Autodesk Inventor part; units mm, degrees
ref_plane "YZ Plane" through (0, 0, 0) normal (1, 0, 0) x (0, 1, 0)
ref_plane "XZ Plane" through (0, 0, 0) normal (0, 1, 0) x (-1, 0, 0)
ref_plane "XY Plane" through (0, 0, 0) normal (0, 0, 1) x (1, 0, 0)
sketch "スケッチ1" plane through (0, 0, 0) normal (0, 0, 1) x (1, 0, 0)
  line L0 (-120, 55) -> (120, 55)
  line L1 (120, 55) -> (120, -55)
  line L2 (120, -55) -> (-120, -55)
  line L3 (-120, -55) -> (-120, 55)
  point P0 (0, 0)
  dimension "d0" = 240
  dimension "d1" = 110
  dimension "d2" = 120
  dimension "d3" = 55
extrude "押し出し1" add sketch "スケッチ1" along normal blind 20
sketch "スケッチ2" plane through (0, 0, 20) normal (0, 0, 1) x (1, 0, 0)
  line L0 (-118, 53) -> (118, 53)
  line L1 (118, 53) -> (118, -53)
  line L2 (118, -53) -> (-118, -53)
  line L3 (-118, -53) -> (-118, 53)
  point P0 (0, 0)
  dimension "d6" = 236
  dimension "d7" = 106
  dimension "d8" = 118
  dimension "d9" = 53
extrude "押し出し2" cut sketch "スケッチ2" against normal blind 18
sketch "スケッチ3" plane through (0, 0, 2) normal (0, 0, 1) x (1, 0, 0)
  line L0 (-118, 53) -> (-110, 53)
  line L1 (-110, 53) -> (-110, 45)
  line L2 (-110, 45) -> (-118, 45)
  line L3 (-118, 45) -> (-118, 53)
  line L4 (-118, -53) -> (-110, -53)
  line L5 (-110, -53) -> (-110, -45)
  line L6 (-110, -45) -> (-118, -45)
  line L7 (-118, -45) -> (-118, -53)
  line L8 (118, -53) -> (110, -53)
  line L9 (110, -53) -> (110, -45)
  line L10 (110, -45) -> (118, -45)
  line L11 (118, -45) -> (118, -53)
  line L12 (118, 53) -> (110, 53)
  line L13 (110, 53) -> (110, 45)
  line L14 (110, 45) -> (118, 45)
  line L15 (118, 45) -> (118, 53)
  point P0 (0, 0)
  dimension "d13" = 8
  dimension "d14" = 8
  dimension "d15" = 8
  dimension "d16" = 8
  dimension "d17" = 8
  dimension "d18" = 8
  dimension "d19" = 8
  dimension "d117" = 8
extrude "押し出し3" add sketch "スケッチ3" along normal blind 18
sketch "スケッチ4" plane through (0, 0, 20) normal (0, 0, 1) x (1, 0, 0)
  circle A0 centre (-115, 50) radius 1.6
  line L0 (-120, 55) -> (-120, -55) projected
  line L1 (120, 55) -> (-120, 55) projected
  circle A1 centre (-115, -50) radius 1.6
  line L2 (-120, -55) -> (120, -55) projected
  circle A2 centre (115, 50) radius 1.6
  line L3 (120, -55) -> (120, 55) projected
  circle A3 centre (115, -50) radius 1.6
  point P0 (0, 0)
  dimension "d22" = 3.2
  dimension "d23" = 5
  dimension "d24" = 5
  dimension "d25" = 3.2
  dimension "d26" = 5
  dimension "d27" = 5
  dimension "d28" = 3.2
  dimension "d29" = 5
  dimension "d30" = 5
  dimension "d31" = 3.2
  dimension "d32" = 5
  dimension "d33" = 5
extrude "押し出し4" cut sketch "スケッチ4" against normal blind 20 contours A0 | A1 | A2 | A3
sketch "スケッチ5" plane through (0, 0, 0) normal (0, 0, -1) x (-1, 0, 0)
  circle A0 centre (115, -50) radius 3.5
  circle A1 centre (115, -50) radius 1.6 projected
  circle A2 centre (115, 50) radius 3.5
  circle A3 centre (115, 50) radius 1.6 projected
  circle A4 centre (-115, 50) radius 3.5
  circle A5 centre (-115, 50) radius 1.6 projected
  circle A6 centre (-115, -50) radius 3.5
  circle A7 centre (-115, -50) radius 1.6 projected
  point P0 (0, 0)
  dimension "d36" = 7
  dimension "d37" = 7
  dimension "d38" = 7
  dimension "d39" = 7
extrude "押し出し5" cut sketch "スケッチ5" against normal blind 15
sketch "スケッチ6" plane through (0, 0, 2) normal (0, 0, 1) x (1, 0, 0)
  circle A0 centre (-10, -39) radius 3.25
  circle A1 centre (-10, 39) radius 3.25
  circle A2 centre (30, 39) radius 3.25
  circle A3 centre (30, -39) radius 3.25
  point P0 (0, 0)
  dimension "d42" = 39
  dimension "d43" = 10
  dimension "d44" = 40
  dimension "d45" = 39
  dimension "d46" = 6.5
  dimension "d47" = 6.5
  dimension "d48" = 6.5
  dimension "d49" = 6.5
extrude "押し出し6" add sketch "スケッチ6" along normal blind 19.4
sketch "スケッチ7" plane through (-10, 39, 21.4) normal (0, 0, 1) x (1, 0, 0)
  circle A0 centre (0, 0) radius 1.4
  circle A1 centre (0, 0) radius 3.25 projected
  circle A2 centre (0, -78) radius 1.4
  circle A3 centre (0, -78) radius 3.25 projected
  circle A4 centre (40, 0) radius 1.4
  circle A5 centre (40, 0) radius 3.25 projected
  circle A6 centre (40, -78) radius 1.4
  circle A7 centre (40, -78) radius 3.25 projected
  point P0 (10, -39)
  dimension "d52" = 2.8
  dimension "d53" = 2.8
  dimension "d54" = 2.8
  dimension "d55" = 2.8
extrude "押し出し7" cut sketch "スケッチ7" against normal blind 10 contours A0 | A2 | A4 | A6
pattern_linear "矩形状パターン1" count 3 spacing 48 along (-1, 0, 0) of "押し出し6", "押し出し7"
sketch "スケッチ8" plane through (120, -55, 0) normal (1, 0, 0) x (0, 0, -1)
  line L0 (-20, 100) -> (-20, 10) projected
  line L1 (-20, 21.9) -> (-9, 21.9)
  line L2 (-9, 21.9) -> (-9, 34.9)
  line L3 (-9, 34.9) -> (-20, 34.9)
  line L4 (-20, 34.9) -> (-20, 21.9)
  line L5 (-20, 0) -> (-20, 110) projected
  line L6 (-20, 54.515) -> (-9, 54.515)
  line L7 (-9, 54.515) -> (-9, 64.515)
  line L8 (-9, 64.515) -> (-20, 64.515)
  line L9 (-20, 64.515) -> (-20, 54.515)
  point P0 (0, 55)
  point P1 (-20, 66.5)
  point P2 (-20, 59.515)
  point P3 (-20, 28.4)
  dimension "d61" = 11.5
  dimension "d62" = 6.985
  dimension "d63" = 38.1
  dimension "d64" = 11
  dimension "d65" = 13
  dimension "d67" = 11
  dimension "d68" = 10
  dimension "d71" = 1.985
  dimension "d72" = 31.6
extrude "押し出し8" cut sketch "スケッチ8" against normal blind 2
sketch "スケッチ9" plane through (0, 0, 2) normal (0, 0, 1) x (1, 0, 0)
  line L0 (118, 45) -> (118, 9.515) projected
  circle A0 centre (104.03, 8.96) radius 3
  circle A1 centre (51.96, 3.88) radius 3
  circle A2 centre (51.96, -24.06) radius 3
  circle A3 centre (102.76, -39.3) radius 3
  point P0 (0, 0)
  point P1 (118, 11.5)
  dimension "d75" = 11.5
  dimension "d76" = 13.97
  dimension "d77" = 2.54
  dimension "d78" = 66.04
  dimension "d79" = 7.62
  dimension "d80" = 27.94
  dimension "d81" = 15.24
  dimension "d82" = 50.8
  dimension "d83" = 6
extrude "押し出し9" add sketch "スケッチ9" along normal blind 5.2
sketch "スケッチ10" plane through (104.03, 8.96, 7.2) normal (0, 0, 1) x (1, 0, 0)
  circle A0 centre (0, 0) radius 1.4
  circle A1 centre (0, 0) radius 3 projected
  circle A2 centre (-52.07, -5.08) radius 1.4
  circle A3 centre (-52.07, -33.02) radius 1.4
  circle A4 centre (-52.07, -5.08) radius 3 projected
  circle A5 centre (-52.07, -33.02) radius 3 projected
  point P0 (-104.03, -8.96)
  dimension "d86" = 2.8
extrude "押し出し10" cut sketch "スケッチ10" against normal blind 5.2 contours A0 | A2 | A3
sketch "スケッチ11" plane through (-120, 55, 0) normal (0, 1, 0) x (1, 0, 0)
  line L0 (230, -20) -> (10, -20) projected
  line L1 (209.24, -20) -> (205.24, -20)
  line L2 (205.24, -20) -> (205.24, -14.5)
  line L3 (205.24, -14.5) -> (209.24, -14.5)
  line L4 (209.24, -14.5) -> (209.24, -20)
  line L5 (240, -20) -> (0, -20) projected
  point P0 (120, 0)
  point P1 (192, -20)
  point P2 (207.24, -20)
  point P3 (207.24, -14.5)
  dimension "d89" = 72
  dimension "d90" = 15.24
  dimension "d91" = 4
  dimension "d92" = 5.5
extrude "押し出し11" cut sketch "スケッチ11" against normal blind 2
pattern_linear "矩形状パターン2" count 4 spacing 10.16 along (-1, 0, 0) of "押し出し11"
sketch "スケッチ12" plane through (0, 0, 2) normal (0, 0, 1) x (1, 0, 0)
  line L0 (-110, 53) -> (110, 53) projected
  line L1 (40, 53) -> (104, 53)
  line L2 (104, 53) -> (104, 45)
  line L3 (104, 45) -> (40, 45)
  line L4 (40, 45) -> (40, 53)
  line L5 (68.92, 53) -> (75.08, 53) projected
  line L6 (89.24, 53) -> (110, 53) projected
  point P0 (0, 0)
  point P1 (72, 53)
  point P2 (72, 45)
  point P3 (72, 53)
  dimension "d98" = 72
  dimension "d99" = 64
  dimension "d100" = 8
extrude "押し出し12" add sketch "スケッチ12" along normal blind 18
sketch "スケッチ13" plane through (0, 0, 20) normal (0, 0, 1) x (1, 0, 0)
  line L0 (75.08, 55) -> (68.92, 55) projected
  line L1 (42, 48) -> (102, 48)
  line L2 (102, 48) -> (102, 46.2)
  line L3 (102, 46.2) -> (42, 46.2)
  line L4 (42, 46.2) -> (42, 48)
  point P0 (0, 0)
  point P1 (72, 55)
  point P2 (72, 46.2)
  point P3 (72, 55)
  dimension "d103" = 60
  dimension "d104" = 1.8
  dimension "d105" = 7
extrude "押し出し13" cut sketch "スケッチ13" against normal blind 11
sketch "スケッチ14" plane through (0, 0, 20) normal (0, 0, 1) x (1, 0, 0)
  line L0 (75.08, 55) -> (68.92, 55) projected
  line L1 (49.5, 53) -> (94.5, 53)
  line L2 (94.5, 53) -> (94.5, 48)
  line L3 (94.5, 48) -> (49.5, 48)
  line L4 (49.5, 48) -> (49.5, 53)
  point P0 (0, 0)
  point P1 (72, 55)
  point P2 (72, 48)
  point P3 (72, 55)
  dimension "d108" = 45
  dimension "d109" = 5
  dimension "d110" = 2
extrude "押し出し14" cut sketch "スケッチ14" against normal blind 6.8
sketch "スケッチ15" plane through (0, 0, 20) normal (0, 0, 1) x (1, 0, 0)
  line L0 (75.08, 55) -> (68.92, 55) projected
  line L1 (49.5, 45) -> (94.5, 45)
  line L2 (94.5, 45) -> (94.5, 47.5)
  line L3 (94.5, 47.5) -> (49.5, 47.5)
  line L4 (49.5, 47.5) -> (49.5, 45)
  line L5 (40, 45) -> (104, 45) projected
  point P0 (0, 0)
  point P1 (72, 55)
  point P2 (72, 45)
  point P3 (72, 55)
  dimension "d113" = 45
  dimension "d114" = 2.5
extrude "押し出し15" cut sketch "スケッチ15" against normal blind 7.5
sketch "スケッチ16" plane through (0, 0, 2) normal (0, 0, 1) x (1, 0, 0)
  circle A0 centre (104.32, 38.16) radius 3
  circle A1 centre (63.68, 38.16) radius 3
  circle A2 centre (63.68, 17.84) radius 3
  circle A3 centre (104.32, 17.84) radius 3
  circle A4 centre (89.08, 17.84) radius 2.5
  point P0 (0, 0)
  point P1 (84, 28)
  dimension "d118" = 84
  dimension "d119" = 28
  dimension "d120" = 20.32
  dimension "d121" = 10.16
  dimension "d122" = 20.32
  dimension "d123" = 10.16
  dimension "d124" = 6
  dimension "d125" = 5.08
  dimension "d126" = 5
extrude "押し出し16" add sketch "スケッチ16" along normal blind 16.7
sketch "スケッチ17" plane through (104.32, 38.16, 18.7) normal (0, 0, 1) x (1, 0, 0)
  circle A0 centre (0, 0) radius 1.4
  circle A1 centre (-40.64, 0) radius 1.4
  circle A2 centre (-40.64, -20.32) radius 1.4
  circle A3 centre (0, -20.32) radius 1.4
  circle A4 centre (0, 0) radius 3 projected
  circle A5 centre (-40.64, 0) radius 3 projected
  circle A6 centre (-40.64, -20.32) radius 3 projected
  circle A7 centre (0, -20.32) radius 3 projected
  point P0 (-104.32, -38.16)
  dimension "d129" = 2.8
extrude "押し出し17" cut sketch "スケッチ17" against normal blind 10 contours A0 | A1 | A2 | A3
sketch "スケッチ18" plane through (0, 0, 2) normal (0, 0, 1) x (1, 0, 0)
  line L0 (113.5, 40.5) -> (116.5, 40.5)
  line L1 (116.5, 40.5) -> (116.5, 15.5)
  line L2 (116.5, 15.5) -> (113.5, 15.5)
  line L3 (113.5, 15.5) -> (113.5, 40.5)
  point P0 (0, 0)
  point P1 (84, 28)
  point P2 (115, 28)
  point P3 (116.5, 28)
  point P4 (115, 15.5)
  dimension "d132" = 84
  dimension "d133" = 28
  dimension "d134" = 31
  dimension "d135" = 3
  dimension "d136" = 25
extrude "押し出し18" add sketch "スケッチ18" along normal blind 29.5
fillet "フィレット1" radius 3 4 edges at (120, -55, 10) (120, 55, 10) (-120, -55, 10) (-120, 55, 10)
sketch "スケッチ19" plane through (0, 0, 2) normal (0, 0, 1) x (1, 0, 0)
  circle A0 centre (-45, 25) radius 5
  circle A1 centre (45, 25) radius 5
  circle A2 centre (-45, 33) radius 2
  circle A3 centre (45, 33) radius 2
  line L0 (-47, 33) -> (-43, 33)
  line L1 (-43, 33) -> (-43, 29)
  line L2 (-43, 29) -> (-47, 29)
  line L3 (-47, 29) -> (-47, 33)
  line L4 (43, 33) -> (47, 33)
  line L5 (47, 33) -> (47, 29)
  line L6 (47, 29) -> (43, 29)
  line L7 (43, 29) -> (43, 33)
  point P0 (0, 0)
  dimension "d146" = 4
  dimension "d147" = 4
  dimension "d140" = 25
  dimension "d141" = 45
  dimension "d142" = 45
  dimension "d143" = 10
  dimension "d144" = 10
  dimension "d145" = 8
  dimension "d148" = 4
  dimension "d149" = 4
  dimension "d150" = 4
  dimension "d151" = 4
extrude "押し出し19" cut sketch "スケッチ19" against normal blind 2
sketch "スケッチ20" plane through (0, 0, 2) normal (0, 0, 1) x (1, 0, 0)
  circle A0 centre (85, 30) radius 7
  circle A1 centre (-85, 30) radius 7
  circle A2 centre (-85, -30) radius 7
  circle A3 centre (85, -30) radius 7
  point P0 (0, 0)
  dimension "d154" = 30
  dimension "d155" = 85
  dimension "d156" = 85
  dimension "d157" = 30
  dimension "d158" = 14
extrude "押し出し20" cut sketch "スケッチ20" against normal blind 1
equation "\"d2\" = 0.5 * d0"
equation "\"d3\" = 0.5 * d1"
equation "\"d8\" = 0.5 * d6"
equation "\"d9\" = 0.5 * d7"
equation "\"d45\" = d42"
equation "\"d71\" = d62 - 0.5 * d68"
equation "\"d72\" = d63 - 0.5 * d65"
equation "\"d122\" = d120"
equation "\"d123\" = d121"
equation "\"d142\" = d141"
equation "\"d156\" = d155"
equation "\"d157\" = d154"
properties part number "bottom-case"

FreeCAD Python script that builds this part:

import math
import FreeCAD as App
import Part
import Sketcher

V = App.Vector
Q = App.Units.Quantity


def edges_at(feature, points):
    """Names of the edges that pass closest to the given points."""
    edges = feature.Shape.Edges
    near = lambda p: min(range(len(edges)), key=lambda i: edges[i].distToShape(Part.Vertex(*p))[0])
    return sorted({f"Edge{near(p) + 1}" for p in points})


def add_polygon(sketch, points):
    """Adds a closed chain of lines whose ends are joined by coincident constraints."""
    first, n = sketch.GeometryCount, len(points)
    for a, b in zip(points, points[1:] + points[:1]):
        sketch.addGeometry(Part.LineSegment(App.Vector(*a, 0), App.Vector(*b, 0)), False)
    for i in range(n):
        sketch.addConstraint(Sketcher.Constraint("Coincident", first + i, 2, first + (i + 1) % n, 1))

doc = App.newDocument("Part")
body = doc.addObject("PartDesign::Body", "Body")

# Sketch on XY plane
sketch1 = body.newObject("Sketcher::SketchObject", "Sketch")
sketch1.AttachmentSupport = (doc.getObject("XY_Plane"), [""])
sketch1.MapMode = "FlatFace"
add_polygon(sketch1, [(120, 55), (-120, 55), (-120, -55), (120, -55)])  # lines 0-3
sketch1.addConstraint([
    Sketcher.Constraint("Horizontal", 0),
    Sketcher.Constraint("Vertical", 1),
    Sketcher.Constraint("Horizontal", 2),
    Sketcher.Constraint("Vertical", 3),
    Sketcher.Constraint("Symmetric", 0, 2, 2, 2, -1, 1),
    Sketcher.Constraint("DistanceX", 0, 2, 0, 1, Q("240 mm")),
    Sketcher.Constraint("DistanceY", 1, 2, 1, 1, Q("110 mm")),
])
pad1 = body.newObject("PartDesign::Pad", "Pad")
pad1.Profile = sketch1
pad1.Length = 20

# Sketch on XY plane
sketch2 = body.newObject("Sketcher::SketchObject", "Sketch001")
sketch2.AttachmentSupport = (doc.getObject("XY_Plane"), [""])
sketch2.MapMode = "FlatFace"
sketch2.AttachmentOffset = App.Placement(V(0, 0, 20), App.Rotation())
add_polygon(sketch2, [(118, 53), (-118, 53), (-118, -53), (118, -53)])  # lines 0-3
sketch2.addConstraint([
    Sketcher.Constraint("Horizontal", 0),
    Sketcher.Constraint("Vertical", 1),
    Sketcher.Constraint("Horizontal", 2),
    Sketcher.Constraint("Vertical", 3),
    Sketcher.Constraint("Symmetric", 0, 2, 2, 2, -1, 1),
    Sketcher.Constraint("DistanceX", 0, 2, 0, 1, Q("236 mm")),
    Sketcher.Constraint("DistanceY", 1, 2, 1, 1, Q("106 mm")),
])
pocket1 = body.newObject("PartDesign::Pocket", "Pocket")
pocket1.Profile = sketch2
pocket1.Length = 18

# Sketch on XY plane
sketch3 = body.newObject("Sketcher::SketchObject", "Sketch002")
sketch3.AttachmentSupport = (doc.getObject("XY_Plane"), [""])
sketch3.MapMode = "FlatFace"
sketch3.AttachmentOffset = App.Placement(V(0, 0, 2), App.Rotation())
add_polygon(sketch3, [(-110, 53), (-118, 53), (-118, 45), (-110, 45)])  # lines 0-3
add_polygon(sketch3, [(-118, -45), (-118, -53), (-110, -53), (-110, -45)])  # lines 4-7
add_polygon(sketch3, [(110, -53), (118, -53), (118, -45), (110, -45)])  # lines 8-11
add_polygon(sketch3, [(118, 45), (118, 53), (110, 53), (110, 45)])  # lines 12-15
sketch3.addConstraint([
    Sketcher.Constraint("Horizontal", 0),
    Sketcher.Constraint("Vertical", 1),
    Sketcher.Constraint("Horizontal", 2),
    Sketcher.Constraint("Vertical", 3),
    Sketcher.Constraint("Vertical", 4),
    Sketcher.Constraint("Horizontal", 5),
    Sketcher.Constraint("Vertical", 6),
    Sketcher.Constraint("Horizontal", 7),
    Sketcher.Constraint("Horizontal", 8),
    Sketcher.Constraint("Vertical", 9),
    Sketcher.Constraint("Horizontal", 10),
    Sketcher.Constraint("Vertical", 11),
    Sketcher.Constraint("Vertical", 12),
    Sketcher.Constraint("Horizontal", 13),
    Sketcher.Constraint("Vertical", 14),
    Sketcher.Constraint("Horizontal", 15),
    Sketcher.Constraint("Symmetric", 0, 2, 8, 2, -1, 1),
    Sketcher.Constraint("Symmetric", 2, 2, 10, 2, -1, 1),
    Sketcher.Constraint("Symmetric", 4, 2, 12, 2, -1, 1),
    Sketcher.Constraint("Symmetric", 6, 2, 14, 2, -1, 1),
    Sketcher.Constraint("Symmetric", 4, 2, 8, 2, -2),
    Sketcher.Constraint("Symmetric", 6, 2, 10, 2, -2),
    Sketcher.Constraint("Equal", 15, 1),
    Sketcher.Constraint("DistanceX", 0, 2, 0, 1, Q("8 mm")),
    Sketcher.Constraint("DistanceX", 0, 2, -1, 1, Q("118 mm")),
    Sketcher.Constraint("DistanceY", -1, 1, 0, 2, Q("53 mm")),
])
pad2 = body.newObject("PartDesign::Pad", "Pad001")
pad2.Profile = sketch3
pad2.Length = 18

# Sketch on XY plane
sketch4 = body.newObject("Sketcher::SketchObject", "Sketch003")
sketch4.AttachmentSupport = (doc.getObject("XY_Plane"), [""])
sketch4.MapMode = "FlatFace"
sketch4.AttachmentOffset = App.Placement(V(0, 0, 20), App.Rotation())
sketch4.addGeometry([
    Part.Circle(V(-115, 50, 0), V(0, 0, 1), 1.6),
    Part.Circle(V(-115, -50, 0), V(0, 0, 1), 1.6),
    Part.Circle(V(115, 50, 0), V(0, 0, 1), 1.6),
    Part.Circle(V(115, -50, 0), V(0, 0, 1), 1.6),
], False)
sketch4.addConstraint([
    Sketcher.Constraint("Equal", 0, 1),
    Sketcher.Constraint("Equal", 1, 2),
    Sketcher.Constraint("Equal", 2, 3),
    Sketcher.Constraint("Symmetric", 1, 3, 2, 3, -1, 1),
    Sketcher.Constraint("Symmetric", 0, 3, 3, 3, -1, 1),
    Sketcher.Constraint("Symmetric", 0, 3, 2, 3, -2),
    Sketcher.Constraint("Diameter", 0, Q("3.2 mm")),
    Sketcher.Constraint("DistanceX", 0, 3, -1, 1, Q("115 mm")),
    Sketcher.Constraint("DistanceY", -1, 1, 0, 3, Q("50 mm")),
])
pocket2 = body.newObject("PartDesign::Pocket", "Pocket001")
pocket2.Profile = sketch4
pocket2.Length = 20

# Sketch on XY plane
sketch5 = body.newObject("Sketcher::SketchObject", "Sketch004")
sketch5.AttachmentSupport = (doc.getObject("XY_Plane"), [""])
sketch5.MapMode = "FlatFace"
sketch5.addGeometry([
    Part.Circle(V(-115, -50, 0), V(0, 0, 1), 3.5),  # 0
    Part.Circle(V(-115, -50, 0), V(0, 0, 1), 1.6),  # 1
    Part.Circle(V(-115, 50, 0), V(0, 0, 1), 3.5),  # 2
    Part.Circle(V(-115, 50, 0), V(0, 0, 1), 1.6),  # 3
    Part.Circle(V(115, 50, 0), V(0, 0, 1), 3.5),  # 4
    Part.Circle(V(115, 50, 0), V(0, 0, 1), 1.6),  # 5
    Part.Circle(V(115, -50, 0), V(0, 0, 1), 3.5),  # 6
    Part.Circle(V(115, -50, 0), V(0, 0, 1), 1.6),  # 7
], False)
sketch5.addConstraint([
    Sketcher.Constraint("Coincident", 1, 3, 0, 3),
    Sketcher.Constraint("Coincident", 3, 3, 2, 3),
    Sketcher.Constraint("Coincident", 5, 3, 4, 3),
    Sketcher.Constraint("Coincident", 7, 3, 6, 3),
    Sketcher.Constraint("Equal", 0, 2),
    Sketcher.Constraint("Equal", 1, 3),
    Sketcher.Constraint("Equal", 2, 4),
    Sketcher.Constraint("Equal", 3, 5),
    Sketcher.Constraint("Equal", 4, 6),
    Sketcher.Constraint("Equal", 5, 7),
    Sketcher.Constraint("Symmetric", 0, 3, 4, 3, -1, 1),
    Sketcher.Constraint("Symmetric", 2, 3, 6, 3, -1, 1),
    Sketcher.Constraint("Symmetric", 2, 3, 4, 3, -2),
    Sketcher.Constraint("Diameter", 0, Q("7 mm")),
    Sketcher.Constraint("Diameter", 1, Q("3.2 mm")),
    Sketcher.Constraint("DistanceX", 0, 3, -1, 1, Q("115 mm")),
    Sketcher.Constraint("DistanceY", 0, 3, -1, 1, Q("50 mm")),
])
pocket3 = body.newObject("PartDesign::Pocket", "Pocket002")
pocket3.Profile = sketch5
pocket3.Length = 15
pocket3.Reversed = True

# Sketch on XY plane
sketch6 = body.newObject("Sketcher::SketchObject", "Sketch005")
sketch6.AttachmentSupport = (doc.getObject("XY_Plane"), [""])
sketch6.MapMode = "FlatFace"
sketch6.AttachmentOffset = App.Placement(V(0, 0, 2), App.Rotation())
sketch6.addGeometry([
    Part.Circle(V(-10, -39, 0), V(0, 0, 1), 3.2),
    Part.Circle(V(-10, 39, 0), V(0, 0, 1), 3.2),
    Part.Circle(V(30, 39, 0), V(0, 0, 1), 3.2),
    Part.Circle(V(30, -39, 0), V(0, 0, 1), 3.2),
], False)
sketch6.addConstraint([
    Sketcher.Constraint("Equal", 0, 1),
    Sketcher.Constraint("Equal", 1, 2),
    Sketcher.Constraint("Equal", 2, 3),
    Sketcher.Constraint("Symmetric", 0, 3, 1, 3, -1),
    Sketcher.Constraint("Symmetric", 2, 3, 3, 3, -1),
    Sketcher.Constraint("Horizontal", 1, 3, 2, 3),
    Sketcher.Constraint("Diameter", 0, Q("6.5 mm")),
    Sketcher.Constraint("DistanceX", 0, 3, -1, 1, Q("10 mm")),
    Sketcher.Constraint("DistanceY", 0, 3, -1, 1, Q("39 mm")),
    Sketcher.Constraint("DistanceX", 1, 3, 2, 3, Q("40 mm")),
])
pad3 = body.newObject("PartDesign::Pad", "Pad002")
pad3.Profile = sketch6
pad3.Length = 19.4

# Sketch on XY plane
sketch7 = body.newObject("Sketcher::SketchObject", "Sketch006")
sketch7.AttachmentSupport = (doc.getObject("XY_Plane"), [""])
sketch7.MapMode = "FlatFace"
sketch7.AttachmentOffset = App.Placement(V(0, 0, 21.4), App.Rotation())
sketch7.addGeometry([
    Part.Circle(V(-10, 39, 0), V(0, 0, 1), 1.4),
    Part.Circle(V(-10, -39, 0), V(0, 0, 1), 1.4),
    Part.Circle(V(30, 39, 0), V(0, 0, 1), 1.4),
    Part.Circle(V(30, -39, 0), V(0, 0, 1), 1.4),
], False)
sketch7.addConstraint([
    Sketcher.Constraint("Equal", 0, 1),
    Sketcher.Constraint("Equal", 1, 2),
    Sketcher.Constraint("Equal", 2, 3),
    Sketcher.Constraint("Symmetric", 0, 3, 1, 3, -1),
    Sketcher.Constraint("Symmetric", 2, 3, 3, 3, -1),
    Sketcher.Constraint("Horizontal", 0, 3, 2, 3),
    Sketcher.Constraint("Diameter", 0, Q("2.8 mm")),
    Sketcher.Constraint("DistanceX", 0, 3, -1, 1, Q("10 mm")),
    Sketcher.Constraint("DistanceY", -1, 1, 0, 3, Q("39 mm")),
    Sketcher.Constraint("DistanceX", -1, 1, 2, 3, Q("30 mm")),
])
pocket4 = body.newObject("PartDesign::Pocket", "Pocket003")
pocket4.Profile = sketch7
pocket4.Length = 10
doc.recompute()

linearpattern = body.newObject("PartDesign::LinearPattern", "LinearPattern")
linearpattern.Originals = [pad3, pocket4]
linearpattern.Direction = (doc.getObject("X_Axis"), [""])
linearpattern.Mode = "offset"
linearpattern.Offset = 48
linearpattern.Occurrences = 3
linearpattern.Reversed = True
body.Tip = linearpattern

# Sketch on YZ plane
sketch8 = body.newObject("Sketcher::SketchObject", "Sketch007")
sketch8.AttachmentSupport = (doc.getObject("YZ_Plane"), [""])
sketch8.MapMode = "FlatFace"
sketch8.AttachmentOffset = App.Placement(V(0, 0, 120), App.Rotation())
add_polygon(sketch8, [(10, 9), (10, 20), (0, 20), (0, 9)])  # lines 0-3
add_polygon(sketch8, [(-20, 9), (-20, 20), (-33, 20), (-33, 9)])  # lines 4-7
sketch8.addConstraint([
    Sketcher.Constraint("Vertical", 0),
    Sketcher.Constraint("Horizontal", 1),
    Sketcher.Constraint("Vertical", 2),
    Sketcher.Constraint("Horizontal", 3),
    Sketcher.Constraint("Vertical", 4),
    Sketcher.Constraint("Horizontal", 5),
    Sketcher.Constraint("Vertical", 6),
    Sketcher.Constraint("Horizontal", 7),
    Sketcher.Constraint("Horizontal", 1, 2, 4, 2),
    Sketcher.Constraint("Horizontal", 3, 2, 6, 2),
    Sketcher.Constraint("DistanceX", 1, 2, 1, 1, Q("10 mm")),
    Sketcher.Constraint("DistanceX", 5, 2, 5, 1, Q("13 mm")),
    Sketcher.Constraint("DistanceY", 0, 1, 0, 2, Q("11 mm")),
    Sketcher.Constraint("DistanceY", -1, 1, 0, 2, Q("20 mm")),
    Sketcher.Constraint("DistanceX", 4, 2, -1, 1, Q("20.1 mm")),
    Sketcher.Constraint("DistanceX", -1, 1, 0, 2, Q("9.515 mm")),
])
pocket5 = body.newObject("PartDesign::Pocket", "Pocket004")
pocket5.Profile = sketch8
pocket5.Length = 2

# Sketch on XY plane
sketch9 = body.newObject("Sketcher::SketchObject", "Sketch008")
sketch9.AttachmentSupport = (doc.getObject("XY_Plane"), [""])
sketch9.MapMode = "FlatFace"
sketch9.AttachmentOffset = App.Placement(V(0, 0, 2), App.Rotation())
sketch9.addGeometry([
    Part.Circle(V(104, 9, 0), V(0, 0, 1), 3),
    Part.Circle(V(52, 3.9, 0), V(0, 0, 1), 3),
    Part.Circle(V(52, -24.1, 0), V(0, 0, 1), 3),
    Part.Circle(V(102.8, -39.3, 0), V(0, 0, 1), 3),
], False)
sketch9.addConstraint([
    Sketcher.Constraint("Equal", 0, 1),
    Sketcher.Constraint("Equal", 1, 2),
    Sketcher.Constraint("Equal", 2, 3),
    Sketcher.Constraint("Vertical", 1, 3, 2, 3),
    Sketcher.Constraint("Diameter", 0, Q("6 mm")),
    Sketcher.Constraint("DistanceX", 2, 3, 3, 3, Q("50.8 mm")),
    Sketcher.Constraint("DistanceY", 2, 3, 1, 3, Q("27.94 mm")),
    Sketcher.Constraint("DistanceY", 3, 3, 2, 3, Q("15.24 mm")),
    Sketcher.Constraint("DistanceY", 3, 3, -1, 1, Q("39.3 mm")),
    Sketcher.Constraint("DistanceX", -1, 1, 0, 3, Q("104.03 mm")),
    Sketcher.Constraint("DistanceY", -1, 1, 0, 3, Q("8.96 mm")),
    Sketcher.Constraint("DistanceX", -1, 1, 1, 3, Q("51.96 mm")),
])
pad4 = body.newObject("PartDesign::Pad", "Pad003")
pad4.Profile = sketch9
pad4.Length = 5.2

# Sketch on XY plane
sketch10 = body.newObject("Sketcher::SketchObject", "Sketch009")
sketch10.AttachmentSupport = (doc.getObject("XY_Plane"), [""])
sketch10.MapMode = "FlatFace"
sketch10.AttachmentOffset = App.Placement(V(0, 0, 7.2), App.Rotation())
sketch10.addGeometry([
    Part.Circle(V(104, 9, 0), V(0, 0, 1), 1.4),
    Part.Circle(V(52, 3.9, 0), V(0, 0, 1), 1.4),
    Part.Circle(V(52, -24.1, 0), V(0, 0, 1), 1.4),
], False)
sketch10.addConstraint([
    Sketcher.Constraint("Equal", 0, 1),
    Sketcher.Constraint("Equal", 1, 2),
    Sketcher.Constraint("Vertical", 1, 3, 2, 3),
    Sketcher.Constraint("Diameter", 0, Q("2.8 mm")),
    Sketcher.Constraint("DistanceX", -1, 1, 0, 3, Q("104.03 mm")),
    Sketcher.Constraint("DistanceY", -1, 1, 0, 3, Q("8.96 mm")),
    Sketcher.Constraint("DistanceX", -1, 1, 1, 3, Q("51.96 mm")),
    Sketcher.Constraint("DistanceY", -1, 1, 1, 3, Q("3.88 mm")),
    Sketcher.Constraint("DistanceY", 2, 3, -1, 1, Q("24.06 mm")),
])
pocket6 = body.newObject("PartDesign::Pocket", "Pocket005")
pocket6.Profile = sketch10
pocket6.Length = 5.2

# Sketch on XZ plane
sketch11 = body.newObject("Sketcher::SketchObject", "Sketch010")
sketch11.AttachmentSupport = (doc.getObject("XZ_Plane"), [""])
sketch11.MapMode = "FlatFace"
sketch11.AttachmentOffset = App.Placement(V(0, 0, -55), App.Rotation())
add_polygon(sketch11, [(85.2, 20), (89.2, 20), (89.2, 14.5), (85.2, 14.5)])  # lines 0-3
sketch11.addConstraint([
    Sketcher.Constraint("Horizontal", 0),
    Sketcher.Constraint("Vertical", 1),
    Sketcher.Constraint("Horizontal", 2),
    Sketcher.Constraint("Vertical", 3),
    Sketcher.Constraint("DistanceX", 0, 1, 0, 2, Q("4 mm")),
    Sketcher.Constraint("DistanceY", 1, 2, 1, 1, Q("5.5 mm")),
    Sketcher.Constraint("DistanceY", -1, 1, 0, 2, Q("20 mm")),
    Sketcher.Constraint("DistanceX", -1, 1, 0, 2, Q("89.24 mm")),
])
pocket7 = body.newObject("PartDesign::Pocket", "Pocket006")
pocket7.Profile = sketch11
pocket7.Length = 2
pocket7.Reversed = True
doc.recompute()

linearpattern2 = body.newObject("PartDesign::LinearPattern", "LinearPattern001")
linearpattern2.Originals = [pocket7]
linearpattern2.Direction = (doc.getObject("X_Axis"), [""])
linearpattern2.Mode = "offset"
linearpattern2.Offset = 10.16
linearpattern2.Occurrences = 4
linearpattern2.Reversed = True
body.Tip = linearpattern2

# Sketch on XY plane
sketch12 = body.newObject("Sketcher::SketchObject", "Sketch011")
sketch12.AttachmentSupport = (doc.getObject("XY_Plane"), [""])
sketch12.MapMode = "FlatFace"
sketch12.AttachmentOffset = App.Placement(V(0, 0, 2), App.Rotation())
add_polygon(sketch12, [(104, 53), (40, 53), (40, 45), (104, 45)])  # lines 0-3
sketch12.addConstraint([
    Sketcher.Constraint("Horizontal", 0),
    Sketcher.Constraint("Vertical", 1),
    Sketcher.Constraint("Horizontal", 2),
    Sketcher.Constraint("Vertical", 3),
    Sketcher.Constraint("DistanceX", 0, 2, 0, 1, Q("64 mm")),
    Sketcher.Constraint("DistanceY", 1, 2, 1, 1, Q("8 mm")),
    Sketcher.Constraint("DistanceX", -1, 1, 0, 2, Q("40 mm")),
    Sketcher.Constraint("DistanceY", -1, 1, 0, 2, Q("53 mm")),
])
pad5 = body.newObject("PartDesign::Pad", "Pad004")
pad5.Profile = sketch12
pad5.Length = 18

# Sketch on XY plane
sketch13 = body.newObject("Sketcher::SketchObject", "Sketch012")
sketch13.AttachmentSupport = (doc.getObject("XY_Plane"), [""])
sketch13.MapMode = "FlatFace"
sketch13.AttachmentOffset = App.Placement(V(0, 0, 20), App.Rotation())
add_polygon(sketch13, [(102, 48), (42, 48), (42, 46.2), (102, 46.2)])  # lines 0-3
sketch13.addConstraint([
    Sketcher.Constraint("Horizontal", 0),
    Sketcher.Constraint("Vertical", 1),
    Sketcher.Constraint("Horizontal", 2),
    Sketcher.Constraint("Vertical", 3),
    Sketcher.Constraint("DistanceX", 0, 2, 0, 1, Q("60 mm")),
    Sketcher.Constraint("DistanceY", 1, 2, 1, 1, Q("1.8 mm")),
    Sketcher.Constraint("DistanceX", -1, 1, 0, 2, Q("42 mm")),
    Sketcher.Constraint("DistanceY", -1, 1, 0, 2, Q("48 mm")),
])
pocket8 = body.newObject("PartDesign::Pocket", "Pocket007")
pocket8.Profile = sketch13
pocket8.Length = 11

# Sketch on XY plane
sketch14 = body.newObject("Sketcher::SketchObject", "Sketch013")
sketch14.AttachmentSupport = (doc.getObject("XY_Plane"), [""])
sketch14.MapMode = "FlatFace"
sketch14.AttachmentOffset = App.Placement(V(0, 0, 20), App.Rotation())
add_polygon(sketch14, [(94, 53), (50, 53), (50, 48), (94, 48)])  # lines 0-3
sketch14.addConstraint([
    Sketcher.Constraint("Horizontal", 0),
    Sketcher.Constraint("Vertical", 1),
    Sketcher.Constraint("Horizontal", 2),
    Sketcher.Constraint("Vertical", 3),
    Sketcher.Constraint("DistanceX", 0, 2, 0, 1, Q("45 mm")),
    Sketcher.Constraint("DistanceY", 1, 2, 1, 1, Q("5 mm")),
    Sketcher.Constraint("DistanceY", -1, 1, 0, 2, Q("53 mm")),
    Sketcher.Constraint("DistanceX", -1, 1, 0, 2, Q("49.5 mm")),
])
pocket9 = body.newObject("PartDesign::Pocket", "Pocket008")
pocket9.Profile = sketch14
pocket9.Length = 6.8

# Sketch on XY plane
sketch15 = body.newObject("Sketcher::SketchObject", "Sketch014")
sketch15.AttachmentSupport = (doc.getObject("XY_Plane"), [""])
sketch15.MapMode = "FlatFace"
sketch15.AttachmentOffset = App.Placement(V(0, 0, 20), App.Rotation())
add_polygon(sketch15, [(49.5, 47.5), (49.5, 45), (94.5, 45), (94.5, 47.5)])  # lines 0-3
sketch15.addConstraint([
    Sketcher.Constraint("Vertical", 0),
    Sketcher.Constraint("Horizontal", 1),
    Sketcher.Constraint("Vertical", 2),
    Sketcher.Constraint("Horizontal", 3),
    Sketcher.Constraint("DistanceX", 1, 1, 1, 2, Q("45 mm")),
    Sketcher.Constraint("DistanceY", 0, 2, 0, 1, Q("2.5 mm")),
    Sketcher.Constraint("DistanceY", -1, 1, 0, 2, Q("45 mm")),
    Sketcher.Constraint("DistanceX", -1, 1, 0, 2, Q("49.5 mm")),
])
pocket10 = body.newObject("PartDesign::Pocket", "Pocket009")
pocket10.Profile = sketch15
pocket10.Length = 7.5

# Sketch on XY plane
sketch16 = body.newObject("Sketcher::SketchObject", "Sketch015")
sketch16.AttachmentSupport = (doc.getObject("XY_Plane"), [""])
sketch16.MapMode = "FlatFace"
sketch16.AttachmentOffset = App.Placement(V(0, 0, 2), App.Rotation())
sketch16.addGeometry([
    Part.Circle(V(104.3, 38.2, 0), V(0, 0, 1), 3),  # 0
    Part.Circle(V(63.7, 38.2, 0), V(0, 0, 1), 3),  # 1
    Part.Circle(V(63.7, 17.8, 0), V(0, 0, 1), 3),  # 2
    Part.Circle(V(104.3, 17.8, 0), V(0, 0, 1), 3),  # 3
    Part.Circle(V(89.1, 17.8, 0), V(0, 0, 1), 2.5),  # 4
], False)
sketch16.addConstraint([
    Sketcher.Constraint("Equal", 0, 1),
    Sketcher.Constraint("Equal", 1, 2),
    Sketcher.Constraint("Equal", 2, 3),
    Sketcher.Constraint("Horizontal", 0, 3, 1, 3),
    Sketcher.Constraint("Horizontal", 2, 3, 3, 3),
    Sketcher.Constraint("Horizontal", 3, 3, 4, 3),
    Sketcher.Constraint("Vertical", 1, 3, 2, 3),
    Sketcher.Constraint("Vertical", 0, 3, 3, 3),
    Sketcher.Constraint("Diameter", 0, Q("6 mm")),
    Sketcher.Constraint("Diameter", 4, Q("5 mm")),
    Sketcher.Constraint("DistanceY", 2, 3, 1, 3, Q("20.32 mm")),
    Sketcher.Constraint("DistanceX", 2, 3, 4, 3, Q("25.4 mm")),
    Sketcher.Constraint("DistanceX", -1, 1, 0, 3, Q("104.32 mm")),
    Sketcher.Constraint("DistanceY", -1, 1, 0, 3, Q("38.16 mm")),
    Sketcher.Constraint("DistanceX", -1, 1, 1, 3, Q("63.68 mm")),
])
pad6 = body.newObject("PartDesign::Pad", "Pad005")
pad6.Profile = sketch16
pad6.Length = 16.7

# Sketch on XY plane
sketch17 = body.newObject("Sketcher::SketchObject", "Sketch016")
sketch17.AttachmentSupport = (doc.getObject("XY_Plane"), [""])
sketch17.MapMode = "FlatFace"
sketch17.AttachmentOffset = App.Placement(V(0, 0, 18.7), App.Rotation())
sketch17.addGeometry([
    Part.Circle(V(104.3, 38.2, 0), V(0, 0, 1), 1.4),
    Part.Circle(V(63.7, 38.2, 0), V(0, 0, 1), 1.4),
    Part.Circle(V(63.7, 17.8, 0), V(0, 0, 1), 1.4),
    Part.Circle(V(104.3, 17.8, 0), V(0, 0, 1), 1.4),
], False)
sketch17.addConstraint([
    Sketcher.Constraint("Equal", 0, 1),
    Sketcher.Constraint("Equal", 1, 2),
    Sketcher.Constraint("Equal", 2, 3),
    Sketcher.Constraint("Horizontal", 0, 3, 1, 3),
    Sketcher.Constraint("Horizontal", 2, 3, 3, 3),
    Sketcher.Constraint("Vertical", 1, 3, 2, 3),
    Sketcher.Constraint("Vertical", 0, 3, 3, 3),
    Sketcher.Constraint("Diameter", 0, Q("2.8 mm")),
    Sketcher.Constraint("DistanceX", -1, 1, 0, 3, Q("104.32 mm")),
    Sketcher.Constraint("DistanceY", -1, 1, 0, 3, Q("38.16 mm")),
    Sketcher.Constraint("DistanceX", -1, 1, 1, 3, Q("63.68 mm")),
    Sketcher.Constraint("DistanceY", -1, 1, 2, 3, Q("17.84 mm")),
])
pocket11 = body.newObject("PartDesign::Pocket", "Pocket010")
pocket11.Profile = sketch17
pocket11.Length = 10

# Sketch on XY plane
sketch18 = body.newObject("Sketcher::SketchObject", "Sketch017")
sketch18.AttachmentSupport = (doc.getObject("XY_Plane"), [""])
sketch18.MapMode = "FlatFace"
sketch18.AttachmentOffset = App.Placement(V(0, 0, 2), App.Rotation())
add_polygon(sketch18, [(116.5, 40.5), (113.5, 40.5), (113.5, 15.5), (116.5, 15.5)])  # lines 0-3
sketch18.addConstraint([
    Sketcher.Constraint("Horizontal", 0),
    Sketcher.Constraint("Vertical", 1),
    Sketcher.Constraint("Horizontal", 2),
    Sketcher.Constraint("Vertical", 3),
    Sketcher.Constraint("DistanceX", 0, 2, 0, 1, Q("3 mm")),
    Sketcher.Constraint("DistanceY", 1, 2, 1, 1, Q("25 mm")),
    Sketcher.Constraint("DistanceX", -1, 1, 0, 2, Q("113.5 mm")),
    Sketcher.Constraint("DistanceY", -1, 1, 0, 2, Q("40.5 mm")),
])
pad7 = body.newObject("PartDesign::Pad", "Pad006")
pad7.Profile = sketch18
pad7.Length = 29.5
doc.recompute()

fillet = body.newObject("PartDesign::Fillet", "Fillet")
fillet.Base = (pad7, edges_at(pad7, [
    (120, -55, 10),
    (120, 55, 10),
    (-120, -55, 10),
    (-120, 55, 10),
]))
fillet.Radius = 3

# Sketch on XY plane
sketch19 = body.newObject("Sketcher::SketchObject", "Sketch018")
sketch19.AttachmentSupport = (doc.getObject("XY_Plane"), [""])
sketch19.MapMode = "FlatFace"
sketch19.AttachmentOffset = App.Placement(V(0, 0, 2), App.Rotation())
sketch19.addGeometry([
    Part.ArcOfCircle(Part.Circle(V(-45, 25, 0), V(0, 0, 1), 5), math.radians(114), math.radians(426)),  # 0
    Part.LineSegment(V(-43, 29.6, 0), V(-43, 33, 0)),  # 1
    Part.ArcOfCircle(Part.Circle(V(-45, 33, 0), V(0, 0, 1), 2), math.radians(0), math.radians(180)),  # 2
    Part.LineSegment(V(-47, 33, 0), V(-47, 29.6, 0)),  # 3
    Part.ArcOfCircle(Part.Circle(V(45, 25, 0), V(0, 0, 1), 5), math.radians(114), math.radians(426)),  # 4
    Part.LineSegment(V(47, 29.6, 0), V(47, 33, 0)),  # 5
    Part.ArcOfCircle(Part.Circle(V(45, 33, 0), V(0, 0, 1), 2), math.radians(0), math.radians(180)),  # 6
    Part.LineSegment(V(43, 33, 0), V(43, 29.6, 0)),  # 7
], False)
sketch19.addConstraint([
    Sketcher.Constraint("Coincident", 0, 2, 1, 1),
    Sketcher.Constraint("Tangent", 1, 2, 2, 1),
    Sketcher.Constraint("Tangent", 2, 2, 3, 1),
    Sketcher.Constraint("Coincident", 3, 2, 0, 1),
    Sketcher.Constraint("Coincident", 4, 2, 5, 1),
    Sketcher.Constraint("Tangent", 5, 2, 6, 1),
    Sketcher.Constraint("Tangent", 6, 2, 7, 1),
    Sketcher.Constraint("Coincident", 7, 2, 4, 1),
    Sketcher.Constraint("Vertical", 1),
    Sketcher.Constraint("Vertical", 3),
    Sketcher.Constraint("Vertical", 5),
    Sketcher.Constraint("Vertical", 7),
    Sketcher.Constraint("Equal", 0, 4),
    Sketcher.Constraint("Equal", 2, 6),
    Sketcher.Constraint("Symmetric", 0, 3, 4, 3, -2),
    Sketcher.Constraint("Symmetric", 2, 3, 6, 3, -2),
    Sketcher.Constraint("Horizontal", 0, 2, 3, 2),
    Sketcher.Constraint("Radius", 0, Q("5 mm")),
    Sketcher.Constraint("Radius", 2, Q("2 mm")),
    Sketcher.Constraint("DistanceX", 0, 3, -1, 1, Q("45 mm")),
    Sketcher.Constraint("DistanceY", -1, 1, 0, 3, Q("25 mm")),
    Sketcher.Constraint("DistanceY", 0, 3, 2, 3, Q("8 mm")),
])
pocket12 = body.newObject("PartDesign::Pocket", "Pocket011")
pocket12.Profile = sketch19
pocket12.Length = 2

# Sketch on XY plane
sketch20 = body.newObject("Sketcher::SketchObject", "Sketch019")
sketch20.AttachmentSupport = (doc.getObject("XY_Plane"), [""])
sketch20.MapMode = "FlatFace"
sketch20.AttachmentOffset = App.Placement(V(0, 0, 2), App.Rotation())
sketch20.addGeometry([
    Part.Circle(V(85, 30, 0), V(0, 0, 1), 7),
    Part.Circle(V(-85, 30, 0), V(0, 0, 1), 7),
    Part.Circle(V(-85, -30, 0), V(0, 0, 1), 7),
    Part.Circle(V(85, -30, 0), V(0, 0, 1), 7),
], False)
sketch20.addConstraint([
    Sketcher.Constraint("Equal", 0, 1),
    Sketcher.Constraint("Equal", 1, 2),
    Sketcher.Constraint("Equal", 2, 3),
    Sketcher.Constraint("Symmetric", 0, 3, 2, 3, -1, 1),
    Sketcher.Constraint("Symmetric", 1, 3, 3, 3, -1, 1),
    Sketcher.Constraint("Symmetric", 0, 3, 1, 3, -2),
    Sketcher.Constraint("Diameter", 0, Q("14 mm")),
    Sketcher.Constraint("DistanceX", -1, 1, 0, 3, Q("85 mm")),
    Sketcher.Constraint("DistanceY", -1, 1, 0, 3, Q("30 mm")),
])
pocket13 = body.newObject("PartDesign::Pocket", "Pocket012")
pocket13.Profile = sketch20
pocket13.Length = 1

doc.recompute()
